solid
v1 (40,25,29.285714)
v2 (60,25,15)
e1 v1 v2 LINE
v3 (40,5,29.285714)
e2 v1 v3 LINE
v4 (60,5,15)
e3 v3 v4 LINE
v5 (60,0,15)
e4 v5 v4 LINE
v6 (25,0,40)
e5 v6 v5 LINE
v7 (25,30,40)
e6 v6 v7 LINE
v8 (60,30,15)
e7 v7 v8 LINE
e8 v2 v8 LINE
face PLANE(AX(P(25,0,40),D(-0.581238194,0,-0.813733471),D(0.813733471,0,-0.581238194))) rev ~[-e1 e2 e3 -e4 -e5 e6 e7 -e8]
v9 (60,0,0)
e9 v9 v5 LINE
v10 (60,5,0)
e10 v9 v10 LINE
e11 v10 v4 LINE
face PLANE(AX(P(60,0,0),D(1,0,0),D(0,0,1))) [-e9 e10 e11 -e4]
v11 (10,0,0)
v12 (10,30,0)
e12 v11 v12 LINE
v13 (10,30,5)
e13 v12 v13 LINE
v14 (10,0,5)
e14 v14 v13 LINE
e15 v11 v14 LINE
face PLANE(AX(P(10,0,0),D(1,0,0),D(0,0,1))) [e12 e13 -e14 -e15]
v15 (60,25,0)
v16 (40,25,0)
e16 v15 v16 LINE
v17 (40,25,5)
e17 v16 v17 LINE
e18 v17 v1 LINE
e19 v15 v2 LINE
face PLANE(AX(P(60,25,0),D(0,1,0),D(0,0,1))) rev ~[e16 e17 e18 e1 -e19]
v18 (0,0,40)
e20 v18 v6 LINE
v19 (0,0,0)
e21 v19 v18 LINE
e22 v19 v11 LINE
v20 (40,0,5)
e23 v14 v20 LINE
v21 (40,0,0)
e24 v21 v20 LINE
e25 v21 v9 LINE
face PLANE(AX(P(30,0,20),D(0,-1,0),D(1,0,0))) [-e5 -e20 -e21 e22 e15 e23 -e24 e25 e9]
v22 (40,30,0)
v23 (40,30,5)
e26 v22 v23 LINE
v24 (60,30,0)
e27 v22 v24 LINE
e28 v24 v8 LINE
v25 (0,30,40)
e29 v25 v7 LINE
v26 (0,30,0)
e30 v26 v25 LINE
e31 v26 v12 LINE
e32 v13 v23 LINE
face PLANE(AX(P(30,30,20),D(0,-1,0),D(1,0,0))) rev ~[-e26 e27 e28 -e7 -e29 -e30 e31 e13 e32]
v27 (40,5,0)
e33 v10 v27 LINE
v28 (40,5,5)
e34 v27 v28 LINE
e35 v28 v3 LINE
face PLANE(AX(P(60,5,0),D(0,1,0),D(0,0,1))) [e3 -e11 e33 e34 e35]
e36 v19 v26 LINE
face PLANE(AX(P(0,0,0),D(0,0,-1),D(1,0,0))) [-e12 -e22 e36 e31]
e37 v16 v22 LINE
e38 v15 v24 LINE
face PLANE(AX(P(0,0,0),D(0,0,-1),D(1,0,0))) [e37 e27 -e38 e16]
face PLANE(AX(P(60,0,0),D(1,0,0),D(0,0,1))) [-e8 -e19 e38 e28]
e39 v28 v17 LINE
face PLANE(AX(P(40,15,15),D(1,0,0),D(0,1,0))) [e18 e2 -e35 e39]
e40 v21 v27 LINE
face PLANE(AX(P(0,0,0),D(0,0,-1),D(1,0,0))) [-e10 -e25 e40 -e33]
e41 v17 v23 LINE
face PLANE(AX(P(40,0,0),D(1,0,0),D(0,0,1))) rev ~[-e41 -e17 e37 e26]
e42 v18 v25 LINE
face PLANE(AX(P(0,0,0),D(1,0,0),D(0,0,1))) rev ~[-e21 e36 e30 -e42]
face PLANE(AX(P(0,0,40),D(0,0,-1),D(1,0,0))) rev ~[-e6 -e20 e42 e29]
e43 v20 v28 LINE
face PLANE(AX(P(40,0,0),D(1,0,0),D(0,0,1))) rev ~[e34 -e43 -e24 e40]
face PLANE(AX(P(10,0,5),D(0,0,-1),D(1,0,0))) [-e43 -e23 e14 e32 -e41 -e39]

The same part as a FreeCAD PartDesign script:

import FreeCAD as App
import Part
import Sketcher

doc = App.newDocument("Part")
body = doc.addObject("PartDesign::Body", "Body")

sketch1 = doc.addObject("Sketcher::SketchObject", "Sketch")
body.addObject(sketch1)
sketch1.AttachmentSupport = (doc.XZ_Plane, [""])
sketch1.MapMode = "FlatFace"
sketch1.addGeometry(Part.LineSegment(App.Vector(0, 40, 0), App.Vector(0, 0, 0)), False)
sketch1.addGeometry(Part.LineSegment(App.Vector(0, 0, 0), App.Vector(60, 0, 0)), False)
sketch1.addGeometry(Part.LineSegment(App.Vector(60, 0, 0), App.Vector(60, 40, 0)), False)
sketch1.addGeometry(Part.LineSegment(App.Vector(60, 40, 0), App.Vector(0, 40, 0)), False)
sketch1.addConstraint(Sketcher.Constraint("Coincident", 0, 2, 1, 1))
sketch1.addConstraint(Sketcher.Constraint("Coincident", 1, 2, 2, 1))
sketch1.addConstraint(Sketcher.Constraint("Coincident", 2, 2, 3, 1))
sketch1.addConstraint(Sketcher.Constraint("Coincident", 3, 2, 0, 1))
sketch1.addConstraint(Sketcher.Constraint("Vertical", 0))
sketch1.addConstraint(Sketcher.Constraint("Horizontal", 1))
sketch1.addConstraint(Sketcher.Constraint("Vertical", 2))
sketch1.addConstraint(Sketcher.Constraint("Horizontal", 3))
sketch1.addConstraint(Sketcher.Constraint("Coincident", 0, 2, -1, 1))
sketch1.addConstraint(Sketcher.Constraint("DistanceX", 1, 1, 1, 2, 60.0))
sketch1.addConstraint(Sketcher.Constraint("DistanceY", 0, 2, 0, 1, 40.0))
pad1 = doc.addObject("PartDesign::Pad", "Pad")
body.addObject(pad1)
pad1.Profile = sketch1
pad1.Length = 30
pad1.Reversed = True

sketch2 = doc.addObject("Sketcher::SketchObject", "Sketch001")
body.addObject(sketch2)
sketch2.AttachmentSupport = (doc.XZ_Plane, [""])
sketch2.MapMode = "FlatFace"
sketch2.addGeometry(Part.LineSegment(App.Vector(10, 5, 0), App.Vector(10, 0, 0)), False)
sketch2.addGeometry(Part.LineSegment(App.Vector(10, 0, 0), App.Vector(40, 0, 0)), False)
sketch2.addGeometry(Part.LineSegment(App.Vector(40, 0, 0), App.Vector(40, 5, 0)), False)
sketch2.addGeometry(Part.LineSegment(App.Vector(40, 5, 0), App.Vector(10, 5, 0)), False)
sketch2.addGeometry(Part.LineSegment(App.Vector(60, 40, 0), App.Vector(25, 40, 0)), False)
sketch2.addGeometry(Part.LineSegment(App.Vector(25, 40, 0), App.Vector(60, 15, 0)), False)
sketch2.addGeometry(Part.LineSegment(App.Vector(60, 15, 0), App.Vector(60, 40, 0)), False)
sketch2.addConstraint(Sketcher.Constraint("Coincident", 0, 2, 1, 1))
sketch2.addConstraint(Sketcher.Constraint("Coincident", 1, 2, 2, 1))
sketch2.addConstraint(Sketcher.Constraint("Coincident", 2, 2, 3, 1))
sketch2.addConstraint(Sketcher.Constraint("Coincident", 3, 2, 0, 1))
sketch2.addConstraint(Sketcher.Constraint("Coincident", 4, 2, 5, 1))
sketch2.addConstraint(Sketcher.Constraint("Coincident", 5, 2, 6, 1))
sketch2.addConstraint(Sketcher.Constraint("Coincident", 6, 2, 4, 1))
sketch2.addConstraint(Sketcher.Constraint("Vertical", 0))
sketch2.addConstraint(Sketcher.Constraint("Horizontal", 1))
sketch2.addConstraint(Sketcher.Constraint("Vertical", 2))
sketch2.addConstraint(Sketcher.Constraint("Horizontal", 3))
sketch2.addConstraint(Sketcher.Constraint("Horizontal", 4))
sketch2.addConstraint(Sketcher.Constraint("Vertical", 6))
sketch2.addConstraint(Sketcher.Constraint("PointOnObject", 0, 2, -1))
sketch2.addConstraint(Sketcher.Constraint("DistanceX", 1, 1, 1, 2, 30.0))
sketch2.addConstraint(Sketcher.Constraint("DistanceX", 4, 2, 4, 1, 35.0))
sketch2.addConstraint(Sketcher.Constraint("DistanceY", 0, 2, 0, 1, 5.0))
sketch2.addConstraint(Sketcher.Constraint("DistanceY", 6, 1, 6, 2, 25.0))
sketch2.addConstraint(Sketcher.Constraint("DistanceX", -1, 1, 0, 2, 10.0))
sketch2.addConstraint(Sketcher.Constraint("DistanceX", -1, 1, 4, 2, 25.0))
sketch2.addConstraint(Sketcher.Constraint("DistanceY", -1, 1, 4, 2, 40.0))
pocket1 = doc.addObject("PartDesign::Pocket", "Pocket")
body.addObject(pocket1)
pocket1.Profile = sketch2
pocket1.Type = "ThroughAll"

sketch3 = doc.addObject("Sketcher::SketchObject", "Sketch002")
body.addObject(sketch3)
sketch3.AttachmentSupport = (doc.YZ_Plane, [""])
sketch3.MapMode = "FlatFace"
sketch3.AttachmentOffset = App.Placement(App.Vector(0, 0, 60), App.Rotation())
sketch3.addGeometry(Part.LineSegment(App.Vector(5, 30, 0), App.Vector(5, 0, 0)), False)
sketch3.addGeometry(Part.LineSegment(App.Vector(5, 0, 0), App.Vector(25, 0, 0)), False)
sketch3.addGeometry(Part.LineSegment(App.Vector(25, 0, 0), App.Vector(25, 30, 0)), False)
sketch3.addGeometry(Part.LineSegment(App.Vector(25, 30, 0), App.Vector(5, 30, 0)), False)
sketch3.addConstraint(Sketcher.Constraint("Coincident", 0, 2, 1, 1))
sketch3.addConstraint(Sketcher.Constraint("Coincident", 1, 2, 2, 1))
sketch3.addConstraint(Sketcher.Constraint("Coincident", 2, 2, 3, 1))
sketch3.addConstraint(Sketcher.Constraint("Coincident", 3, 2, 0, 1))
sketch3.addConstraint(Sketcher.Constraint("Vertical", 0))
sketch3.addConstraint(Sketcher.Constraint("Horizontal", 1))
sketch3.addConstraint(Sketcher.Constraint("Vertical", 2))
sketch3.addConstraint(Sketcher.Constraint("Horizontal", 3))
sketch3.addConstraint(Sketcher.Constraint("PointOnObject", 0, 2, -1))
sketch3.addConstraint(Sketcher.Constraint("DistanceX", 1, 1, 1, 2, 20.0))
sketch3.addConstraint(Sketcher.Constraint("DistanceY", 0, 2, 0, 1, 30.0))
sketch3.addConstraint(Sketcher.Constraint("DistanceX", -1, 1, 0, 2, 5.0))
pocket2 = doc.addObject("PartDesign::Pocket", "Pocket001")
body.addObject(pocket2)
pocket2.Profile = sketch3
pocket2.Length = 20

doc.recompute()
